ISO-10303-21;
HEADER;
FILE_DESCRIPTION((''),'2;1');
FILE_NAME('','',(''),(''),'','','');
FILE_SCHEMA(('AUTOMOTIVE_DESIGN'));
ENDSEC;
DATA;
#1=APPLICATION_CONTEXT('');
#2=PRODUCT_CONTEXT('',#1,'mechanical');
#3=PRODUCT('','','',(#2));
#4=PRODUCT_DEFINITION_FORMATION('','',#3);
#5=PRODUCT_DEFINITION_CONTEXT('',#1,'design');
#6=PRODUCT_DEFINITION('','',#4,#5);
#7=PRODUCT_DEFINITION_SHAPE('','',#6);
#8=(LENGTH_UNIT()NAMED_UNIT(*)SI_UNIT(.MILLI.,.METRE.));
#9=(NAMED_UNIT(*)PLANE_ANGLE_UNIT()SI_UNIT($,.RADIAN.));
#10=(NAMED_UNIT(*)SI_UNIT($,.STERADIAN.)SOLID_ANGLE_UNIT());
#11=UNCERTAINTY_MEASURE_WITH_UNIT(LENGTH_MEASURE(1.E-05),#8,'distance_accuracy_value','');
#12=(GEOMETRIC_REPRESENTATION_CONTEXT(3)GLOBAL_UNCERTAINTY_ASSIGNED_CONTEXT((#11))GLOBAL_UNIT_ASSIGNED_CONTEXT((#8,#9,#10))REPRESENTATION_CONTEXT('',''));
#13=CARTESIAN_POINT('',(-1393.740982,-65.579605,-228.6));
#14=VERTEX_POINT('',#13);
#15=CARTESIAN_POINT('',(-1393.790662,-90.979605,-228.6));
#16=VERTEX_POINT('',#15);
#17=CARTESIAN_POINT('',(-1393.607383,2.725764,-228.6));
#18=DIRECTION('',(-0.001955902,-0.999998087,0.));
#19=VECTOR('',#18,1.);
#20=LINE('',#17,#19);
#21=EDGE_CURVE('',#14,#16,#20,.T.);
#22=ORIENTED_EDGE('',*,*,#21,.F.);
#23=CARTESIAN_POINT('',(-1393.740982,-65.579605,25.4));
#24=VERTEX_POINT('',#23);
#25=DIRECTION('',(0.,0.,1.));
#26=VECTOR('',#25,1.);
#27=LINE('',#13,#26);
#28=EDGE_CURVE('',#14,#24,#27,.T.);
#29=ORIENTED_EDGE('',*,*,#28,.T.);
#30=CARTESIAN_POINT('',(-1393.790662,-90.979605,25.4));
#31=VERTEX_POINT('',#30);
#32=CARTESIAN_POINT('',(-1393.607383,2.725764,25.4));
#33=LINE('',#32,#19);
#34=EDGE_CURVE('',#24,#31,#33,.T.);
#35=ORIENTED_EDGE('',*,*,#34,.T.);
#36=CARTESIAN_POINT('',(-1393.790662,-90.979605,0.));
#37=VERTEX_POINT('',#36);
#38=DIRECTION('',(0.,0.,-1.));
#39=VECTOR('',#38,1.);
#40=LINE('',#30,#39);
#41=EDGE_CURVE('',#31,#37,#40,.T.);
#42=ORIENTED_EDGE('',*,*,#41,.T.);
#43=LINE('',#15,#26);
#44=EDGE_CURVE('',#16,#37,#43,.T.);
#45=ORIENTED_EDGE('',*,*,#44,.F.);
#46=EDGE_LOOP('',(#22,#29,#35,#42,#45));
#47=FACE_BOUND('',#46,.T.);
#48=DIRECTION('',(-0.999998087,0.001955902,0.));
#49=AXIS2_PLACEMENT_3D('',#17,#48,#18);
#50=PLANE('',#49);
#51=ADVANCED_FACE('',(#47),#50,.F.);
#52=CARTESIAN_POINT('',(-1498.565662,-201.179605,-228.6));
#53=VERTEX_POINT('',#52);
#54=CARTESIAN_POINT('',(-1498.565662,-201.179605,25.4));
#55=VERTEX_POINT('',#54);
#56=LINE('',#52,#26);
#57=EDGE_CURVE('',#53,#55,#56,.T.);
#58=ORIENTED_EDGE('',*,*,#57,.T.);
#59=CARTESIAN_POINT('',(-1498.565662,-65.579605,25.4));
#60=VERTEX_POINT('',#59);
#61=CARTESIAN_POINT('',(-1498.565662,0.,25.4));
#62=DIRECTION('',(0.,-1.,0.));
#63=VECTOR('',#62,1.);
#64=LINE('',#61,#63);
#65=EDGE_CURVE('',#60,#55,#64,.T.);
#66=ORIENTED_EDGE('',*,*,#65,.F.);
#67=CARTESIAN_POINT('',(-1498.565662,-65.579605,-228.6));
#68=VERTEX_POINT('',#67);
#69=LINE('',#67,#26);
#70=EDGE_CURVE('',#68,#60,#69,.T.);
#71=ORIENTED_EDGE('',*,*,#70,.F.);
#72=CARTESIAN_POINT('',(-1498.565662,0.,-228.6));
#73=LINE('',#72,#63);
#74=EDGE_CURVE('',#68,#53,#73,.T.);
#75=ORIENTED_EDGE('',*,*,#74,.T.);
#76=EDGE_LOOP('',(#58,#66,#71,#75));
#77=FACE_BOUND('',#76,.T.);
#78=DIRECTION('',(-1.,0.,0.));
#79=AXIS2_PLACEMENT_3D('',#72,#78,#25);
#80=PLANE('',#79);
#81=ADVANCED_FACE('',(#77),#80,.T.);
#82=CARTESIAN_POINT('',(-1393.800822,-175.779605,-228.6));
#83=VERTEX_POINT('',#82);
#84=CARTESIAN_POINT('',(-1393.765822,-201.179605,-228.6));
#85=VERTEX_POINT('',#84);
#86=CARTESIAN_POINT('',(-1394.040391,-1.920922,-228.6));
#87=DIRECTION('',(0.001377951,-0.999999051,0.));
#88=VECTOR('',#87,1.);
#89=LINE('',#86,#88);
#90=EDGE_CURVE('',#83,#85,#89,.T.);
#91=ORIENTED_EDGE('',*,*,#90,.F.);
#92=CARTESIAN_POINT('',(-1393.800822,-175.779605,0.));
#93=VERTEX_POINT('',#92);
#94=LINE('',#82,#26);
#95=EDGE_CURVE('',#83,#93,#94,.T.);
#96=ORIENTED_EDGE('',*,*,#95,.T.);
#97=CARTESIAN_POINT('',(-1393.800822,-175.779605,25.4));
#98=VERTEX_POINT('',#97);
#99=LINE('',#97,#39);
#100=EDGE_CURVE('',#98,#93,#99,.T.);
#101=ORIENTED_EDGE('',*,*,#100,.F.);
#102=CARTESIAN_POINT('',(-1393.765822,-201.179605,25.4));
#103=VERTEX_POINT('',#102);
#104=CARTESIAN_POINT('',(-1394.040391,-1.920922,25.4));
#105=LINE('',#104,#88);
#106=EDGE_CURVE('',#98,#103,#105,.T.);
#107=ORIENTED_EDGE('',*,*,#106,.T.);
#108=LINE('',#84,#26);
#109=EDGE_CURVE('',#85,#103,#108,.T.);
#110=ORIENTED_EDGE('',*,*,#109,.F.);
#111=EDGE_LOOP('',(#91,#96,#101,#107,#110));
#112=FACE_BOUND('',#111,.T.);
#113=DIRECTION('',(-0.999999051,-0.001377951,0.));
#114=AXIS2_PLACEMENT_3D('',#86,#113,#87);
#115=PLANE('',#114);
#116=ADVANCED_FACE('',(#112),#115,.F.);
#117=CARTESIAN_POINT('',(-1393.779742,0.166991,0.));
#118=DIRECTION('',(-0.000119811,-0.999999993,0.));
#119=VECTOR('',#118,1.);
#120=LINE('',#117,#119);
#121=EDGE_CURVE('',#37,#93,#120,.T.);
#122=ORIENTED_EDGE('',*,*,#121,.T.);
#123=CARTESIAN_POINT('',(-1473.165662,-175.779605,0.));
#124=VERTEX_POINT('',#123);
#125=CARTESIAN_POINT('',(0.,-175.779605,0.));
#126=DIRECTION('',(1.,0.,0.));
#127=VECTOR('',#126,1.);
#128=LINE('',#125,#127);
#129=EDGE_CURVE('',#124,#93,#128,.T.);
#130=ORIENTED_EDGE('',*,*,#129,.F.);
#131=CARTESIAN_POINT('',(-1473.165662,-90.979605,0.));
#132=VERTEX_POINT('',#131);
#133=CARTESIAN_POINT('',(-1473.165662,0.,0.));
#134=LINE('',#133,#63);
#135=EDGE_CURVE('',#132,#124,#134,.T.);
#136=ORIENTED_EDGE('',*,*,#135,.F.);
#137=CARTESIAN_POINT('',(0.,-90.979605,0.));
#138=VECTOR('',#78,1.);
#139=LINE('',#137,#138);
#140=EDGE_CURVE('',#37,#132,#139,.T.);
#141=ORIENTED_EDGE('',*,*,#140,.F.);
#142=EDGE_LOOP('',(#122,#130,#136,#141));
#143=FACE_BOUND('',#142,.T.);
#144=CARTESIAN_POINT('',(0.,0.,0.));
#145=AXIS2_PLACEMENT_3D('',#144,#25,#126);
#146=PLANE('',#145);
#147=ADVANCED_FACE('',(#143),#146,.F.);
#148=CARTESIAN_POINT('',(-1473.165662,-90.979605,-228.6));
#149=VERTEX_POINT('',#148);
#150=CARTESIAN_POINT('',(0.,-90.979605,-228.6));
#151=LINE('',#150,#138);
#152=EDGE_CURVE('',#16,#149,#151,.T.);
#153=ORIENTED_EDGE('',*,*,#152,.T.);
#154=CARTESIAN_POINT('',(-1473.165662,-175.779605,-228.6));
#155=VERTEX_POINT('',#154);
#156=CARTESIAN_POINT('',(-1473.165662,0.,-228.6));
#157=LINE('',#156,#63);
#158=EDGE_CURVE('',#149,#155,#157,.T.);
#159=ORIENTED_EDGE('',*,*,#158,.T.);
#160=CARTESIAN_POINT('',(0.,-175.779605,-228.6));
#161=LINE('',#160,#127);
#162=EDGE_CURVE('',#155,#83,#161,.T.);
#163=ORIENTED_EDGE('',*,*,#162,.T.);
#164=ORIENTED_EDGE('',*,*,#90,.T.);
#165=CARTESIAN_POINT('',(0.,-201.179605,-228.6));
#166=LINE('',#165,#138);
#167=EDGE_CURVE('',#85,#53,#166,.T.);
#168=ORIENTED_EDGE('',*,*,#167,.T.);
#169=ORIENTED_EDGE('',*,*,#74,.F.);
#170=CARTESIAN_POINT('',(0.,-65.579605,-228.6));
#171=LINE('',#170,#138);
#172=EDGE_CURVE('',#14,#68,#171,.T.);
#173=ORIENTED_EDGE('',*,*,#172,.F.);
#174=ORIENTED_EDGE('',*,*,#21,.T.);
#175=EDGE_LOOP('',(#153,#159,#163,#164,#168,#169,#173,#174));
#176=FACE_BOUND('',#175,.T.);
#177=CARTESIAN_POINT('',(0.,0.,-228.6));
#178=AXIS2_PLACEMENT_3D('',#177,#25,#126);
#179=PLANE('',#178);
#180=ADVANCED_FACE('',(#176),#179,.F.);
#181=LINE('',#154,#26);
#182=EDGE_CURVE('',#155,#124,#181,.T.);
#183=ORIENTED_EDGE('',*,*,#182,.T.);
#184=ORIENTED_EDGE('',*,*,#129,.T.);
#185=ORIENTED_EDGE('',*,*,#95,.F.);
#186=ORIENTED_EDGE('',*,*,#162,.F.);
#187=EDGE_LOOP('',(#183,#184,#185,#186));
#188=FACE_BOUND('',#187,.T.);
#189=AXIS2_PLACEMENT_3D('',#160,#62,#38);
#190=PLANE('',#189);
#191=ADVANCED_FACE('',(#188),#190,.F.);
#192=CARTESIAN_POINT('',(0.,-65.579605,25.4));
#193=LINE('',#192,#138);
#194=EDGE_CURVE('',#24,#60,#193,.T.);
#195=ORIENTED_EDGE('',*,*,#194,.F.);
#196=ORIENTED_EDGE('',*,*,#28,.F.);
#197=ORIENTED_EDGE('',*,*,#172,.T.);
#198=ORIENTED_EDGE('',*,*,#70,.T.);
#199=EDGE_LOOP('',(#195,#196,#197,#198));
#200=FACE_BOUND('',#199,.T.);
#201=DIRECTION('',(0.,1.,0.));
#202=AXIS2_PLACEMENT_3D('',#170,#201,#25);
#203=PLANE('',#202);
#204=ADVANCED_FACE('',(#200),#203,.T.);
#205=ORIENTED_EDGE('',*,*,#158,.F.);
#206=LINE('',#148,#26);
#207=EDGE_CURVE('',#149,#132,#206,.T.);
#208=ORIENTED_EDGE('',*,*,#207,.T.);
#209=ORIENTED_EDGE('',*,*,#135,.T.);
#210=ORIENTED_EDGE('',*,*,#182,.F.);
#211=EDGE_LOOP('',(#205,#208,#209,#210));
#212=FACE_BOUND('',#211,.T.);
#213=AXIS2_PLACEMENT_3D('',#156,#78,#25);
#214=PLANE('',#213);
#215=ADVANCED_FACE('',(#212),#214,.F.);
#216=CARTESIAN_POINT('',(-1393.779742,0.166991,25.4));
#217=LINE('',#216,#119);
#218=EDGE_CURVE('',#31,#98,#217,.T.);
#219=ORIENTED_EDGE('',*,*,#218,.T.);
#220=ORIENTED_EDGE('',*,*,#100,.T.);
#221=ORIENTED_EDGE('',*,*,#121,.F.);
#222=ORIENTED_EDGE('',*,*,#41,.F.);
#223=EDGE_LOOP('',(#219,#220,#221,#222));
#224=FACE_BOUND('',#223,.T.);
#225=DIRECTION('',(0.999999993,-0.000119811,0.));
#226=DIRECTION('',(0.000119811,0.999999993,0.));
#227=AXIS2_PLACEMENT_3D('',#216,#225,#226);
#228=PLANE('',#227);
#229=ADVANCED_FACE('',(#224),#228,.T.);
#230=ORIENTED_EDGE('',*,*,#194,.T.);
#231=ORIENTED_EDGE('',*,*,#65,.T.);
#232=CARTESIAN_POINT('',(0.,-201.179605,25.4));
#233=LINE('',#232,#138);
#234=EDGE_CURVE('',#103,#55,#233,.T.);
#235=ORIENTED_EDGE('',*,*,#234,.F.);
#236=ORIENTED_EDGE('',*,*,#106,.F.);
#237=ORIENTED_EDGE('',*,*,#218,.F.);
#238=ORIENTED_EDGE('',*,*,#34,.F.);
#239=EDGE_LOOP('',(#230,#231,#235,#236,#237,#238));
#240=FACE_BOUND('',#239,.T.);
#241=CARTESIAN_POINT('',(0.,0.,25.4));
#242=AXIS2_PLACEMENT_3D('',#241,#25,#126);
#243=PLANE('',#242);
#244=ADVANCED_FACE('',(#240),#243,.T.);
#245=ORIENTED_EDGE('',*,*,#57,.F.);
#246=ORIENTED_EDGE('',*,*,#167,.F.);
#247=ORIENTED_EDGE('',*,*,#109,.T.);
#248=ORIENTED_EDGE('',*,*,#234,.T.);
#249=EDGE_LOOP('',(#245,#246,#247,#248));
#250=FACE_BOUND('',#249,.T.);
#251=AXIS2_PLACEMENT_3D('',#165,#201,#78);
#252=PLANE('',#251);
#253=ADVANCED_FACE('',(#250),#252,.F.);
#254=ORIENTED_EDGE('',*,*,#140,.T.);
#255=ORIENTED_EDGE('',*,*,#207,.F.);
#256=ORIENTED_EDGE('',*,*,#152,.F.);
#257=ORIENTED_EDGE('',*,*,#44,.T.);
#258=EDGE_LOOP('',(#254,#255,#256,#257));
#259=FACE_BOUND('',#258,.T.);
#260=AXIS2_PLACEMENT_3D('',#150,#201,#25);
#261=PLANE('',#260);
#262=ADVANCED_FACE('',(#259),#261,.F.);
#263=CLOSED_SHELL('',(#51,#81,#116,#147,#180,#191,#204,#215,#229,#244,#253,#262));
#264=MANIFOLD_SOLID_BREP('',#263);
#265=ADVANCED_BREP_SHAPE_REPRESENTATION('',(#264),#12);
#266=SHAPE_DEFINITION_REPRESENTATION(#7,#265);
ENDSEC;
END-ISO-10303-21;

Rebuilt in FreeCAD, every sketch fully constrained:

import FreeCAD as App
import Part
import Sketcher
Q = App.Units.Quantity


def add_polygon(sketch, points):
    """Adds a closed chain of lines whose ends are joined by coincident constraints."""
    first, n = sketch.GeometryCount, len(points)
    for a, b in zip(points, points[1:] + points[:1]):
        sketch.addGeometry(Part.LineSegment(App.Vector(*a, 0), App.Vector(*b, 0)), False)
    for i in range(n):
        sketch.addConstraint(Sketcher.Constraint("Coincident", first + i, 2, first + (i + 1) % n, 1))

doc = App.newDocument("Part")
body = doc.addObject("PartDesign::Body", "Body")

sketch1 = doc.addObject("Sketcher::SketchObject", "Sketch")
body.addObject(sketch1)
sketch1.AttachmentSupport = (doc.XY_Plane, [""])
sketch1.MapMode = "FlatFace"
add_polygon(sketch1, [(-1499, -201), (-1394, -201), (-1394, -176), (-1473, -176), (-1473, -91), (-1394, -91), (-1394, -66), (-1499, -66)])
sketch1.addConstraint([
    Sketcher.Constraint("Horizontal", 0),
    Sketcher.Constraint("Horizontal", 2),
    Sketcher.Constraint("Vertical", 3),
    Sketcher.Constraint("Horizontal", 4),
    Sketcher.Constraint("Horizontal", 6),
    Sketcher.Constraint("Vertical", 7),
    Sketcher.Constraint("DistanceY", 3, 1, 3, 2, Q("84.8 mm")),
    Sketcher.Constraint("DistanceY", 7, 2, 7, 1, Q("135.6 mm")),
    Sketcher.Constraint("DistanceY", 0, 2, 1, 2, Q("25.4 mm")),
    Sketcher.Constraint("DistanceX", 6, 2, 3, 2, Q("25.4 mm")),
    Sketcher.Constraint("DistanceX", 4, 1, 4, 2, Q("79.375 mm")),
    Sketcher.Constraint("DistanceX", 1, 2, 0, 2, Q("0.035 mm")),
    Sketcher.Constraint("DistanceX", 0, 1, 0, 2, Q("104.79984 mm")),
    Sketcher.Constraint("DistanceX", 6, 2, 6, 1, Q("104.82468 mm")),
    Sketcher.Constraint("DistanceX", 0, 2, -1, 1, Q("1393.765822 mm")),
    Sketcher.Constraint("DistanceY", 0, 2, -1, 1, Q("201.179605 mm")),
])
pad1 = doc.addObject("PartDesign::Pad", "Pad")
body.addObject(pad1)
pad1.Profile = sketch1
pad1.Type = "TwoLengths"
pad1.Length = 25.4
pad1.Length2 = 228.6

sketch2 = doc.addObject("Sketcher::SketchObject", "Sketch001")
body.addObject(sketch2)
sketch2.AttachmentSupport = (doc.XY_Plane, [""])
sketch2.MapMode = "FlatFace"
add_polygon(sketch2, [(-1473, -176), (-1394, -176), (-1394, -91), (-1473, -91)])
sketch2.addConstraint([
    Sketcher.Constraint("Horizontal", 0),
    Sketcher.Constraint("Horizontal", 2),
    Sketcher.Constraint("Vertical", 3),
    Sketcher.Constraint("DistanceY", 3, 2, 3, 1, Q("84.8 mm")),
    Sketcher.Constraint("DistanceX", 2, 2, 2, 1, Q("79.375 mm")),
    Sketcher.Constraint("DistanceX", 0, 1, 0, 2, Q("79.36484 mm")),
    Sketcher.Constraint("DistanceX", 0, 2, -1, 1, Q("1393.800822 mm")),
    Sketcher.Constraint("DistanceY", 0, 2, -1, 1, Q("175.779605 mm")),
])
pad2 = doc.addObject("PartDesign::Pad", "Pad001")
body.addObject(pad2)
pad2.Profile = sketch2
pad2.Length = 25.4

doc.recompute()
